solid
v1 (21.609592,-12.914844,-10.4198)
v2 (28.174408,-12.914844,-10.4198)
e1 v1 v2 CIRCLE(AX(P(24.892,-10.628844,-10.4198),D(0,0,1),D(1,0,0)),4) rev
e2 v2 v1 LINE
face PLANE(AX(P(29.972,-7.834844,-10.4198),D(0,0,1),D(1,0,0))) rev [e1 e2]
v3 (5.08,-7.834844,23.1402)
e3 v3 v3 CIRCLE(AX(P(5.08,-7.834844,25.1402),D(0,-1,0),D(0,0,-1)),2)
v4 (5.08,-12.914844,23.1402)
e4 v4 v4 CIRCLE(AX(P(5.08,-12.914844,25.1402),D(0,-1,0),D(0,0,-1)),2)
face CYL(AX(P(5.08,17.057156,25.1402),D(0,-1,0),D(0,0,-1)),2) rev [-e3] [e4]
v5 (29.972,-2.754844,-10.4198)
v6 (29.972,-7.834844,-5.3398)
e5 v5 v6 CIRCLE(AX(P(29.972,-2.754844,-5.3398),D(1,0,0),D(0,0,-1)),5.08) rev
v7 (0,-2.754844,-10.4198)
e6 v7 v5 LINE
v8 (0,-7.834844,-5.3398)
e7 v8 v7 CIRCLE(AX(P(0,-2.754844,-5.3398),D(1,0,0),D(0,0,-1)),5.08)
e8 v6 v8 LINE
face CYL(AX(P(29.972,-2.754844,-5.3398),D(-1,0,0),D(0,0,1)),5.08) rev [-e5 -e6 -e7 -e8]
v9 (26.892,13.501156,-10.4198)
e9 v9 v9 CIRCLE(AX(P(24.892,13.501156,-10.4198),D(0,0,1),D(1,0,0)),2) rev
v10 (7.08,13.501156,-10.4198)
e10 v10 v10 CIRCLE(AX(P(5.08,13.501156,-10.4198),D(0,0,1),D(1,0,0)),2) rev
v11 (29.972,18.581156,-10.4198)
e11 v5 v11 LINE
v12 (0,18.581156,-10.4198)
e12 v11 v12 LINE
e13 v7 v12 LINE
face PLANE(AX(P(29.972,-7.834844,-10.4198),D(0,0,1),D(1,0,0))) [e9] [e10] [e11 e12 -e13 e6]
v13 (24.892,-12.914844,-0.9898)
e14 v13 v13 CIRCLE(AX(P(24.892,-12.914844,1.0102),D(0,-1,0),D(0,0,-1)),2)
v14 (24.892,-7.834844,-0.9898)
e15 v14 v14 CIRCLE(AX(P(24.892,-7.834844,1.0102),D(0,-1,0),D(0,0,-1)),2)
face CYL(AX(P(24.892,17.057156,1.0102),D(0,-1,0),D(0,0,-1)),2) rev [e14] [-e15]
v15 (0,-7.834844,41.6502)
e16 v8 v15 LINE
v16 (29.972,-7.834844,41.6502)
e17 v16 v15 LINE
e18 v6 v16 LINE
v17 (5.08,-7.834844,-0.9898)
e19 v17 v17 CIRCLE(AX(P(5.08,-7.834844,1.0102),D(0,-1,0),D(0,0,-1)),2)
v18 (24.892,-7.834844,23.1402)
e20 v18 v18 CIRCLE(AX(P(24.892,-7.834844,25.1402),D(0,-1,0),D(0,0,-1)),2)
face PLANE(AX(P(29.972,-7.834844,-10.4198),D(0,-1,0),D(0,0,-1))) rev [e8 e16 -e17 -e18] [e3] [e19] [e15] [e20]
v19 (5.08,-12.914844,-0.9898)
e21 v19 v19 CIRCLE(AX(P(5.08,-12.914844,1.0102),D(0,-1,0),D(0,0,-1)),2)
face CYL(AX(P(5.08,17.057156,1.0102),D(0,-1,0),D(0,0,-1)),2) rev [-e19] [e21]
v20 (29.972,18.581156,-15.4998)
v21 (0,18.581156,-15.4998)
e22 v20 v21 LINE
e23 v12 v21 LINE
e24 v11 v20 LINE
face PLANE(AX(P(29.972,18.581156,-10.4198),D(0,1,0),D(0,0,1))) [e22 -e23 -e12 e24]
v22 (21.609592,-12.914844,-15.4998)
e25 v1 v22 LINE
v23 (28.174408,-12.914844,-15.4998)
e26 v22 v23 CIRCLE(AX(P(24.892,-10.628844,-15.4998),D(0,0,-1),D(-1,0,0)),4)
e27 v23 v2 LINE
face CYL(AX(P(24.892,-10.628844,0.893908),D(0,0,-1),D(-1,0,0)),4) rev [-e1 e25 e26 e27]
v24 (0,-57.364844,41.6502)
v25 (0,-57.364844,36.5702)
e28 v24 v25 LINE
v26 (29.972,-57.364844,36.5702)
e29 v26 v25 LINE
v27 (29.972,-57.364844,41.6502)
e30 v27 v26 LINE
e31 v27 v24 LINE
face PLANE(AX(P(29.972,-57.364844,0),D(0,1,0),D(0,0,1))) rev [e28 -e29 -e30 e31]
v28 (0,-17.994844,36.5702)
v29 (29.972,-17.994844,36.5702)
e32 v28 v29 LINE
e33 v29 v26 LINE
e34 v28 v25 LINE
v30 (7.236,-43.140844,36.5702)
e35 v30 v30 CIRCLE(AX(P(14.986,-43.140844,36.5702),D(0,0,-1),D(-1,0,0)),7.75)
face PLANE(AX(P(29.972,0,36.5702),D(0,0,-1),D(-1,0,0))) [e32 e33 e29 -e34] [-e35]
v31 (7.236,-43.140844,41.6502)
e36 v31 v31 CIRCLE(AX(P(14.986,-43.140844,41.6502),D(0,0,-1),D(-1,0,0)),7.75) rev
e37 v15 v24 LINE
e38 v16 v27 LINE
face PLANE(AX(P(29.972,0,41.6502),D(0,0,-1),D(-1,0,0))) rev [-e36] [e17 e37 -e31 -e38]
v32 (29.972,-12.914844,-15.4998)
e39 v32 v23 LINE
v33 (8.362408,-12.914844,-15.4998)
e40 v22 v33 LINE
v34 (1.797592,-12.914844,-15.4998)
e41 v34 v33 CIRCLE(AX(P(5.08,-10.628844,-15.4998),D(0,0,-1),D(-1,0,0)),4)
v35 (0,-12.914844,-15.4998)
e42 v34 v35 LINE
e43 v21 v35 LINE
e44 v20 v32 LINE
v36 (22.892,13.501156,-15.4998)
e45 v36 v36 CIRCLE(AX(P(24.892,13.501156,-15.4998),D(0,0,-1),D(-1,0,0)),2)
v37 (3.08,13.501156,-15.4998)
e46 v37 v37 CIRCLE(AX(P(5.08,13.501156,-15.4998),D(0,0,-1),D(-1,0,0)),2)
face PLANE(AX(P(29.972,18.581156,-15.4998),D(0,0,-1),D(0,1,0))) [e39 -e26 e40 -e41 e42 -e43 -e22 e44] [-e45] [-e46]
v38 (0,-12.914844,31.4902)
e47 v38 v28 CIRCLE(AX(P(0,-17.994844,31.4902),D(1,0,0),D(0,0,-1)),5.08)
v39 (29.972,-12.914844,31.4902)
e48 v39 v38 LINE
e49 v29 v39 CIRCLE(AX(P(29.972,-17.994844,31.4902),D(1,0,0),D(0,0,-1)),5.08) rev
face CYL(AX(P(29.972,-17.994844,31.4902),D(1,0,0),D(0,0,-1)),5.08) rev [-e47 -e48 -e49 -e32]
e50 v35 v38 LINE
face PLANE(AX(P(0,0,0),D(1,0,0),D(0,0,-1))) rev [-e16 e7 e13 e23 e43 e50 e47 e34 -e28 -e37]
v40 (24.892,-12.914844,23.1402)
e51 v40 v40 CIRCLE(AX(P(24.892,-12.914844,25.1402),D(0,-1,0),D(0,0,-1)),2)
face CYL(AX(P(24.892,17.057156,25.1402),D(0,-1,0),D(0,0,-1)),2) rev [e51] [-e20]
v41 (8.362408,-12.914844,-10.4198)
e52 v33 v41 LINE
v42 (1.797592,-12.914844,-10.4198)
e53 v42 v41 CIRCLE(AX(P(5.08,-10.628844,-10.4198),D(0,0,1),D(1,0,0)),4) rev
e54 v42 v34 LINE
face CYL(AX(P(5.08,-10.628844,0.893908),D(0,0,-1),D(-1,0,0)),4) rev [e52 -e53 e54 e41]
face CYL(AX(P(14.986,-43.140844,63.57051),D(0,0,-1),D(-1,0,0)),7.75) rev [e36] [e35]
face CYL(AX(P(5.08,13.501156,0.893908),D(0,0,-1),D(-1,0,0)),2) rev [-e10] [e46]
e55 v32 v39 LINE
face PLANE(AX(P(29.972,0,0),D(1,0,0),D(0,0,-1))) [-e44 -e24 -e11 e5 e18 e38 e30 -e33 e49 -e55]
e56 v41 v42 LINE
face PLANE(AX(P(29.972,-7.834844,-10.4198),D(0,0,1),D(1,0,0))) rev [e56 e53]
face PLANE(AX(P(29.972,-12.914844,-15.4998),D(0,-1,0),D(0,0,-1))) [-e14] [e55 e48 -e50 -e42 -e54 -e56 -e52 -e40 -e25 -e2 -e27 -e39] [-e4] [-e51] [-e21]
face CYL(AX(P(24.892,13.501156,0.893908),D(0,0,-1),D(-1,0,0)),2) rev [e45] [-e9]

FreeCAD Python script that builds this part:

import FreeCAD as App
import Part
import Sketcher
from FreeCAD import Vector
Q = App.Units.Quantity


def edges_at(feature, points):
    """Names of the edges that pass closest to the given points."""
    edges = feature.Shape.Edges
    near = lambda p: min(range(len(edges)), key=lambda i: edges[i].distToShape(Part.Vertex(*p))[0])
    return sorted({f"Edge{near(p) + 1}" for p in points})

doc = App.newDocument("Part")
body = doc.addObject("PartDesign::Body", "Body")

sketch1 = body.newObject("Sketcher::SketchObject", "Sketch")
sketch1.AttachmentSupport = (doc.getObject("YZ_Plane"), [""])
sketch1.MapMode = "FlatFace"
sketch1.addGeometry(Part.LineSegment(Vector(19, -10, 0), Vector(-8, -10, 0)), False)
sketch1.addGeometry(Part.LineSegment(Vector(-8, -10, 0), Vector(-8, 42, 0)), False)
sketch1.addGeometry(Part.LineSegment(Vector(-8, 42, 0), Vector(-57, 42, 0)), False)
sketch1.addGeometry(Part.LineSegment(Vector(-57, 42, 0), Vector(-57, 37, 0)), False)
sketch1.addGeometry(Part.LineSegment(Vector(-57, 37, 0), Vector(-13, 37, 0)), False)
sketch1.addGeometry(Part.LineSegment(Vector(-13, 37, 0), Vector(-13, -15, 0)), False)
sketch1.addGeometry(Part.LineSegment(Vector(-13, -15, 0), Vector(19, -15, 0)), False)
sketch1.addGeometry(Part.LineSegment(Vector(19, -15, 0), Vector(19, -10, 0)), False)
sketch1.addConstraint(Sketcher.Constraint("Coincident", 0, 2, 1, 1))
sketch1.addConstraint(Sketcher.Constraint("Coincident", 1, 2, 2, 1))
sketch1.addConstraint(Sketcher.Constraint("Coincident", 2, 2, 3, 1))
sketch1.addConstraint(Sketcher.Constraint("Coincident", 3, 2, 4, 1))
sketch1.addConstraint(Sketcher.Constraint("Coincident", 4, 2, 5, 1))
sketch1.addConstraint(Sketcher.Constraint("Coincident", 5, 2, 6, 1))
sketch1.addConstraint(Sketcher.Constraint("Coincident", 6, 2, 7, 1))
sketch1.addConstraint(Sketcher.Constraint("Coincident", 7, 2, 0, 1))
sketch1.addConstraint(Sketcher.Constraint("Horizontal", 0))
sketch1.addConstraint(Sketcher.Constraint("Vertical", 1))
sketch1.addConstraint(Sketcher.Constraint("Horizontal", 2))
sketch1.addConstraint(Sketcher.Constraint("Vertical", 3))
sketch1.addConstraint(Sketcher.Constraint("Horizontal", 4))
sketch1.addConstraint(Sketcher.Constraint("Vertical", 5))
sketch1.addConstraint(Sketcher.Constraint("Horizontal", 6))
sketch1.addConstraint(Sketcher.Constraint("Vertical", 7))
sketch1.addConstraint(Sketcher.Constraint("Equal", 1, 5))
sketch1.addConstraint(Sketcher.Constraint("DistanceY", 3, 2, 3, 1, Q("0.2 in")))
sketch1.addConstraint(Sketcher.Constraint("DistanceX", 0, 2, 0, 1, Q("1.04 in")))
sketch1.addConstraint(Sketcher.Constraint("DistanceX", 2, 2, 2, 1, Q("1.95 in")))
sketch1.addConstraint(Sketcher.Constraint("DistanceX", 4, 1, 4, 2, Q("1.75 in")))
sketch1.addConstraint(Sketcher.Constraint("DistanceY", 1, 1, 1, 2, Q("2.05 in")))
sketch1.addConstraint(Sketcher.Constraint("DistanceY", 0, 2, -1, 1, Q("10.4198 mm")))
sketch1.addConstraint(Sketcher.Constraint("DistanceX", 0, 2, -1, 1, Q("7.834844 mm")))
pad1 = body.newObject("PartDesign::Pad", "Pad")
pad1.Profile = sketch1
pad1.Length = Q("1.18 in")
doc.recompute()

fillet = body.newObject("PartDesign::Fillet", "Fillet")
fillet.Base = (pad1, edges_at(pad1, [(14.986, -7.835, -10.42), (14.986, -12.915, 36.57)]))
fillet.Radius = Q("0.2 in")

sketch2 = body.newObject("Sketcher::SketchObject", "Sketch001")
sketch2.AttachmentSupport = (doc.getObject("XY_Plane"), [""])
sketch2.MapMode = "FlatFace"
sketch2.AttachmentOffset = App.Placement(Vector(0, 0, -15.4998), App.Rotation())
sketch2.addGeometry(Part.Circle(Vector(24.9, 13.5, 0), Vector(0, 0, 1), 2), False)
sketch2.addGeometry(Part.Circle(Vector(5.1, 13.5, 0), Vector(0, 0, 1), 2), False)
sketch2.addGeometry(Part.Circle(Vector(5.1, -10.6, 0), Vector(0, 0, 1), 4), False)
sketch2.addGeometry(Part.Circle(Vector(24.9, -10.6, 0), Vector(0, 0, 1), 4), False)
sketch2.addConstraint(Sketcher.Constraint("Equal", 0, 1))
sketch2.addConstraint(Sketcher.Constraint("Equal", 2, 3))
sketch2.addConstraint(Sketcher.Constraint("Horizontal", 0, 3, 1, 3))
sketch2.addConstraint(Sketcher.Constraint("Horizontal", 2, 3, 3, 3))
sketch2.addConstraint(Sketcher.Constraint("Vertical", 1, 3, 2, 3))
sketch2.addConstraint(Sketcher.Constraint("Vertical", 0, 3, 3, 3))
sketch2.addConstraint(Sketcher.Constraint("DistanceX", -1, 1, 1, 3, Q("0.2 in")))
sketch2.addConstraint(Sketcher.Constraint("Diameter", 0, Q("4 mm")))
sketch2.addConstraint(Sketcher.Constraint("Diameter", 2, Q("8 mm")))
sketch2.addConstraint(Sketcher.Constraint("DistanceX", -1, 1, 0, 3, Q("0.98 in")))
sketch2.addConstraint(Sketcher.Constraint("DistanceY", 2, 3, 1, 3, Q("0.95 in")))
sketch2.addConstraint(Sketcher.Constraint("DistanceY", -1, 1, 0, 3, Q("13.501156 mm")))
pocket1 = body.newObject("PartDesign::Pocket", "Pocket")
pocket1.Profile = sketch2
pocket1.Length = Q("0.2 in")
pocket1.Reversed = True

sketch3 = body.newObject("Sketcher::SketchObject", "Sketch002")
sketch3.AttachmentSupport = (doc.getObject("XZ_Plane"), [""])
sketch3.MapMode = "FlatFace"
sketch3.AttachmentOffset = App.Placement(Vector(0, 0, 12.914844), App.Rotation())
sketch3.addGeometry(Part.Circle(Vector(24.9, 1, 0), Vector(0, 0, 1), 2), False)
sketch3.addGeometry(Part.Circle(Vector(5.1, 1, 0), Vector(0, 0, 1), 2), False)
sketch3.addGeometry(Part.Circle(Vector(24.9, 25.1, 0), Vector(0, 0, 1), 2), False)
sketch3.addGeometry(Part.Circle(Vector(5.1, 25.1, 0), Vector(0, 0, 1), 2), False)
sketch3.addConstraint(Sketcher.Constraint("Equal", 0, 1))
sketch3.addConstraint(Sketcher.Constraint("Equal", 1, 2))
sketch3.addConstraint(Sketcher.Constraint("Equal", 2, 3))
sketch3.addConstraint(Sketcher.Constraint("Horizontal", 0, 3, 1, 3))
sketch3.addConstraint(Sketcher.Constraint("Horizontal", 2, 3, 3, 3))
sketch3.addConstraint(Sketcher.Constraint("Vertical", 0, 3, 2, 3))
sketch3.addConstraint(Sketcher.Constraint("Vertical", 1, 3, 3, 3))
sketch3.addConstraint(Sketcher.Constraint("DistanceX", -1, 1, 1, 3, Q("0.2 in")))
sketch3.addConstraint(Sketcher.Constraint("Diameter", 0, Q("4 mm")))
sketch3.addConstraint(Sketcher.Constraint("DistanceX", -1, 1, 0, 3, Q("0.98 in")))
sketch3.addConstraint(Sketcher.Constraint("DistanceY", 0, 3, 2, 3, Q("0.95 in")))
sketch3.addConstraint(Sketcher.Constraint("DistanceY", -1, 1, 0, 3, Q("1.0102 mm")))
pocket2 = body.newObject("PartDesign::Pocket", "Pocket001")
pocket2.Profile = sketch3
pocket2.Length = Q("1.18 in")

sketch4 = body.newObject("Sketcher::SketchObject", "Sketch003")
sketch4.AttachmentSupport = (doc.getObject("XY_Plane"), [""])
sketch4.MapMode = "FlatFace"
sketch4.AttachmentOffset = App.Placement(Vector(0, 0, 36.5702), App.Rotation())
sketch4.addGeometry(Part.Circle(Vector(15, -43, 0), Vector(0, 0, 1), 8), False)
sketch4.addConstraint(Sketcher.Constraint("Diameter", 0, Q("15.5 mm")))
sketch4.addConstraint(Sketcher.Constraint("DistanceX", -1, 1, 0, 3, Q("0.59 in")))
sketch4.addConstraint(Sketcher.Constraint("DistanceY", 0, 3, -1, 1, Q("43.140844 mm")))
pocket3 = body.newObject("PartDesign::Pocket", "Pocket002")
pocket3.Profile = sketch4
pocket3.Length = Q("0.2 in")
pocket3.Reversed = True

doc.recompute()
